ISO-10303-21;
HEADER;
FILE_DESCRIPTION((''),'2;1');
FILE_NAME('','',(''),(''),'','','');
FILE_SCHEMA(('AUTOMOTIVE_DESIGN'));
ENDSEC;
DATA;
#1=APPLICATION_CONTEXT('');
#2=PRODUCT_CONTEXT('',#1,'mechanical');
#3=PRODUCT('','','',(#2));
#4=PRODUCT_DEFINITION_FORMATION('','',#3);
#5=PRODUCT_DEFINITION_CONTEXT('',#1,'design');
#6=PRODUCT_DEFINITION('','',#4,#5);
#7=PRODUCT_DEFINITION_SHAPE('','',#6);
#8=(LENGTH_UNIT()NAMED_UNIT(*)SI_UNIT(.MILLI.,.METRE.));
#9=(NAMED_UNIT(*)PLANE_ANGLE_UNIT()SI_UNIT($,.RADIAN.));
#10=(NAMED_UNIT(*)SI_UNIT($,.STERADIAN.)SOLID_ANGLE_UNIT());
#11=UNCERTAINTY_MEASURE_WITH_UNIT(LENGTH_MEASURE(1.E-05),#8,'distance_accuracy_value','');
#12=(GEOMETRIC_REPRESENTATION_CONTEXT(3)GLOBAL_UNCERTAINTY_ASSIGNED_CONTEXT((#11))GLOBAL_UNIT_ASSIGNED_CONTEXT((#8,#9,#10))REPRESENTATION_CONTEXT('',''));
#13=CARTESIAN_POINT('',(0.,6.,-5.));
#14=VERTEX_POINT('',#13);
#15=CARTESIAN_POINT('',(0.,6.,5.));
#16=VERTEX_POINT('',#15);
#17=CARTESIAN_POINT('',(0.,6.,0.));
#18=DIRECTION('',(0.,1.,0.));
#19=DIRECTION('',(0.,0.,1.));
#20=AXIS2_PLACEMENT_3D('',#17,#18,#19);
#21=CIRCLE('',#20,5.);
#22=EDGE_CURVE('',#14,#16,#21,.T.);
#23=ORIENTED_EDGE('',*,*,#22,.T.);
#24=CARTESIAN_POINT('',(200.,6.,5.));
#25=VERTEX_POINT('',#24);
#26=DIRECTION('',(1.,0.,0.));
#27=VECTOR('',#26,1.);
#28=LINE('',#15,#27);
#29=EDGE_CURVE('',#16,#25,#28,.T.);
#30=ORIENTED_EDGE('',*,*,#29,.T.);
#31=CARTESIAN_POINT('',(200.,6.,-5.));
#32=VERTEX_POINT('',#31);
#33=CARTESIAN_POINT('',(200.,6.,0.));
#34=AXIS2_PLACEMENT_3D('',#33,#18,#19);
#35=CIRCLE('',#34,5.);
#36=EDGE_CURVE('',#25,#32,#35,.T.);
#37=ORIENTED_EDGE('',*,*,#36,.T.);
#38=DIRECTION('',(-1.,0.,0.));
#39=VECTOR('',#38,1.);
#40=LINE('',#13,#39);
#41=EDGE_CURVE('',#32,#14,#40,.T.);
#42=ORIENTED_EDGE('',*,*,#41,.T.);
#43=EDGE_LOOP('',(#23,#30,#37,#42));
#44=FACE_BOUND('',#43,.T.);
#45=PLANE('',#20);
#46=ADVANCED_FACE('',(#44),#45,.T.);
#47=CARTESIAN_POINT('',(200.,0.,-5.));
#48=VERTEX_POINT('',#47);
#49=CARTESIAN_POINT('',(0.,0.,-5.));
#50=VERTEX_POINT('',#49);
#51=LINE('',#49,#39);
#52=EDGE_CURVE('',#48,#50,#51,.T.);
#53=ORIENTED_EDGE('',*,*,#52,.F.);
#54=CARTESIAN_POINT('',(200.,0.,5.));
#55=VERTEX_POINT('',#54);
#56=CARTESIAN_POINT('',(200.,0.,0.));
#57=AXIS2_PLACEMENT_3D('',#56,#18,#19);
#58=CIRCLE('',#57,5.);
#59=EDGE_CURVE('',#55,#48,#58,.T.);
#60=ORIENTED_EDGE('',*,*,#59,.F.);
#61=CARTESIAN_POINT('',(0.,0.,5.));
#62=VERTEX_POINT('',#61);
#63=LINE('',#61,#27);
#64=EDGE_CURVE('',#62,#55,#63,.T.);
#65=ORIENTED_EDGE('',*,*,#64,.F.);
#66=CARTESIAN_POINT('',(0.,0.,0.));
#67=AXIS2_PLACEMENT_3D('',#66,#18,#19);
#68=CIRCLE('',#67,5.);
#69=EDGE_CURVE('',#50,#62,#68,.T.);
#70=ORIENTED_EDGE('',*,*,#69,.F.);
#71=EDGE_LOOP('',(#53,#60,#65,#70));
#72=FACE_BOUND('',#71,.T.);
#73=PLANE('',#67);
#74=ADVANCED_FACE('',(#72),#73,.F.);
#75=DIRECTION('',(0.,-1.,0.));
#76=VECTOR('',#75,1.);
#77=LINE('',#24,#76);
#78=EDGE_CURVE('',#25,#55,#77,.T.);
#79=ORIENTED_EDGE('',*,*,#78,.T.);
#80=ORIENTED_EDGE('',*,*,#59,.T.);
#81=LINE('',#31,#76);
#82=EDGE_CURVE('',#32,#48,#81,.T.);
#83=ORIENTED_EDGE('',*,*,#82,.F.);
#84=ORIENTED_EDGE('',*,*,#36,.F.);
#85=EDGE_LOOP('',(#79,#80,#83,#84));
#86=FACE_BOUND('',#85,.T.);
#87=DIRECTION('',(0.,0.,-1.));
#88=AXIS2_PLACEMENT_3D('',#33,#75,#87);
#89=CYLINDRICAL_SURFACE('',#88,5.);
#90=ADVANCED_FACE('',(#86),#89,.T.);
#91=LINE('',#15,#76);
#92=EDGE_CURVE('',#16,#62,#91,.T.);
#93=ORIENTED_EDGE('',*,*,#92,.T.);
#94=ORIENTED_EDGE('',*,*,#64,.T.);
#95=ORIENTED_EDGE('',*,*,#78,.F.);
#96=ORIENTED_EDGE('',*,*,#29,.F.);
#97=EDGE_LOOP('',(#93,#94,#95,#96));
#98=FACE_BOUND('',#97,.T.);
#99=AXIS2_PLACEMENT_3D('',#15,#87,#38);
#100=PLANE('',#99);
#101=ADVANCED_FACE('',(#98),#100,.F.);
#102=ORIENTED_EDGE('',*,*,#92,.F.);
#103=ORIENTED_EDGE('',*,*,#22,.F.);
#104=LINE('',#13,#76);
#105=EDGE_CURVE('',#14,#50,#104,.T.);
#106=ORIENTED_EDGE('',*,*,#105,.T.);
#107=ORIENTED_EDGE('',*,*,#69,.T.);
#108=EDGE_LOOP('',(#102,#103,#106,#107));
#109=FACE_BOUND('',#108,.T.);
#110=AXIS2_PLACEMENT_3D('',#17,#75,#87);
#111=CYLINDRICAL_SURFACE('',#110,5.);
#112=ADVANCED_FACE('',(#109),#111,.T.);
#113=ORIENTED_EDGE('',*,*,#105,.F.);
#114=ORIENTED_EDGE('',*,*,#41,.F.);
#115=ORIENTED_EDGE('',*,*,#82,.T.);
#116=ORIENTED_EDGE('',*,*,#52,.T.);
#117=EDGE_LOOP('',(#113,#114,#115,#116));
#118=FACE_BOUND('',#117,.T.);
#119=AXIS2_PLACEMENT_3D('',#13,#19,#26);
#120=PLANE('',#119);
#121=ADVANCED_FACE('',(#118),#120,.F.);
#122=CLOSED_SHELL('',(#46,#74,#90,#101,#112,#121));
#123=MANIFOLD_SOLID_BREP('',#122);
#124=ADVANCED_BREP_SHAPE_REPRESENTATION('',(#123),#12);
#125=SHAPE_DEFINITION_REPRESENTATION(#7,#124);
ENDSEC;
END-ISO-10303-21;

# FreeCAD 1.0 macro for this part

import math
import FreeCAD as App
import Part
import Sketcher

V = App.Vector

doc = App.newDocument("Part")
body = doc.addObject("PartDesign::Body", "Body")

sketch1 = doc.addObject("Sketcher::SketchObject", "Sketch")
body.addObject(sketch1)
sketch1.AttachmentSupport = (doc.XZ_Plane, [""])
sketch1.MapMode = "FlatFace"
sketch1.addGeometry(Part.LineSegment(V(200, -5, 0), V(0, -5, 0)), False)
sketch1.addGeometry(Part.ArcOfCircle(Part.Circle(V(0, 0, 0), V(0, 0, 1), 5), math.radians(90), math.radians(270)), False)
sketch1.addGeometry(Part.LineSegment(V(0, 5, 0), V(200, 5, 0)), False)
sketch1.addGeometry(Part.ArcOfCircle(Part.Circle(V(200, 0, 0), V(0, 0, 1), 5), math.radians(-90), math.radians(90)), False)
sketch1.addConstraint(Sketcher.Constraint("Tangent", 0, 2, 1, 2))
sketch1.addConstraint(Sketcher.Constraint("Tangent", 1, 1, 2, 1))
sketch1.addConstraint(Sketcher.Constraint("Tangent", 2, 2, 3, 2))
sketch1.addConstraint(Sketcher.Constraint("Tangent", 3, 1, 0, 1))
sketch1.addConstraint(Sketcher.Constraint("Horizontal", 0))
sketch1.addConstraint(Sketcher.Constraint("Horizontal", 2))
sketch1.addConstraint(Sketcher.Constraint("Coincident", 1, 3, -1, 1))
sketch1.addConstraint(Sketcher.Constraint("Radius", 1, 5.0))
sketch1.addConstraint(Sketcher.Constraint("DistanceX", 0, 2, 0, 1, 200.0))
pad1 = doc.addObject("PartDesign::Pad", "Pad")
body.addObject(pad1)
pad1.Profile = sketch1
pad1.Length = 6
pad1.Reversed = True

doc.recompute()
